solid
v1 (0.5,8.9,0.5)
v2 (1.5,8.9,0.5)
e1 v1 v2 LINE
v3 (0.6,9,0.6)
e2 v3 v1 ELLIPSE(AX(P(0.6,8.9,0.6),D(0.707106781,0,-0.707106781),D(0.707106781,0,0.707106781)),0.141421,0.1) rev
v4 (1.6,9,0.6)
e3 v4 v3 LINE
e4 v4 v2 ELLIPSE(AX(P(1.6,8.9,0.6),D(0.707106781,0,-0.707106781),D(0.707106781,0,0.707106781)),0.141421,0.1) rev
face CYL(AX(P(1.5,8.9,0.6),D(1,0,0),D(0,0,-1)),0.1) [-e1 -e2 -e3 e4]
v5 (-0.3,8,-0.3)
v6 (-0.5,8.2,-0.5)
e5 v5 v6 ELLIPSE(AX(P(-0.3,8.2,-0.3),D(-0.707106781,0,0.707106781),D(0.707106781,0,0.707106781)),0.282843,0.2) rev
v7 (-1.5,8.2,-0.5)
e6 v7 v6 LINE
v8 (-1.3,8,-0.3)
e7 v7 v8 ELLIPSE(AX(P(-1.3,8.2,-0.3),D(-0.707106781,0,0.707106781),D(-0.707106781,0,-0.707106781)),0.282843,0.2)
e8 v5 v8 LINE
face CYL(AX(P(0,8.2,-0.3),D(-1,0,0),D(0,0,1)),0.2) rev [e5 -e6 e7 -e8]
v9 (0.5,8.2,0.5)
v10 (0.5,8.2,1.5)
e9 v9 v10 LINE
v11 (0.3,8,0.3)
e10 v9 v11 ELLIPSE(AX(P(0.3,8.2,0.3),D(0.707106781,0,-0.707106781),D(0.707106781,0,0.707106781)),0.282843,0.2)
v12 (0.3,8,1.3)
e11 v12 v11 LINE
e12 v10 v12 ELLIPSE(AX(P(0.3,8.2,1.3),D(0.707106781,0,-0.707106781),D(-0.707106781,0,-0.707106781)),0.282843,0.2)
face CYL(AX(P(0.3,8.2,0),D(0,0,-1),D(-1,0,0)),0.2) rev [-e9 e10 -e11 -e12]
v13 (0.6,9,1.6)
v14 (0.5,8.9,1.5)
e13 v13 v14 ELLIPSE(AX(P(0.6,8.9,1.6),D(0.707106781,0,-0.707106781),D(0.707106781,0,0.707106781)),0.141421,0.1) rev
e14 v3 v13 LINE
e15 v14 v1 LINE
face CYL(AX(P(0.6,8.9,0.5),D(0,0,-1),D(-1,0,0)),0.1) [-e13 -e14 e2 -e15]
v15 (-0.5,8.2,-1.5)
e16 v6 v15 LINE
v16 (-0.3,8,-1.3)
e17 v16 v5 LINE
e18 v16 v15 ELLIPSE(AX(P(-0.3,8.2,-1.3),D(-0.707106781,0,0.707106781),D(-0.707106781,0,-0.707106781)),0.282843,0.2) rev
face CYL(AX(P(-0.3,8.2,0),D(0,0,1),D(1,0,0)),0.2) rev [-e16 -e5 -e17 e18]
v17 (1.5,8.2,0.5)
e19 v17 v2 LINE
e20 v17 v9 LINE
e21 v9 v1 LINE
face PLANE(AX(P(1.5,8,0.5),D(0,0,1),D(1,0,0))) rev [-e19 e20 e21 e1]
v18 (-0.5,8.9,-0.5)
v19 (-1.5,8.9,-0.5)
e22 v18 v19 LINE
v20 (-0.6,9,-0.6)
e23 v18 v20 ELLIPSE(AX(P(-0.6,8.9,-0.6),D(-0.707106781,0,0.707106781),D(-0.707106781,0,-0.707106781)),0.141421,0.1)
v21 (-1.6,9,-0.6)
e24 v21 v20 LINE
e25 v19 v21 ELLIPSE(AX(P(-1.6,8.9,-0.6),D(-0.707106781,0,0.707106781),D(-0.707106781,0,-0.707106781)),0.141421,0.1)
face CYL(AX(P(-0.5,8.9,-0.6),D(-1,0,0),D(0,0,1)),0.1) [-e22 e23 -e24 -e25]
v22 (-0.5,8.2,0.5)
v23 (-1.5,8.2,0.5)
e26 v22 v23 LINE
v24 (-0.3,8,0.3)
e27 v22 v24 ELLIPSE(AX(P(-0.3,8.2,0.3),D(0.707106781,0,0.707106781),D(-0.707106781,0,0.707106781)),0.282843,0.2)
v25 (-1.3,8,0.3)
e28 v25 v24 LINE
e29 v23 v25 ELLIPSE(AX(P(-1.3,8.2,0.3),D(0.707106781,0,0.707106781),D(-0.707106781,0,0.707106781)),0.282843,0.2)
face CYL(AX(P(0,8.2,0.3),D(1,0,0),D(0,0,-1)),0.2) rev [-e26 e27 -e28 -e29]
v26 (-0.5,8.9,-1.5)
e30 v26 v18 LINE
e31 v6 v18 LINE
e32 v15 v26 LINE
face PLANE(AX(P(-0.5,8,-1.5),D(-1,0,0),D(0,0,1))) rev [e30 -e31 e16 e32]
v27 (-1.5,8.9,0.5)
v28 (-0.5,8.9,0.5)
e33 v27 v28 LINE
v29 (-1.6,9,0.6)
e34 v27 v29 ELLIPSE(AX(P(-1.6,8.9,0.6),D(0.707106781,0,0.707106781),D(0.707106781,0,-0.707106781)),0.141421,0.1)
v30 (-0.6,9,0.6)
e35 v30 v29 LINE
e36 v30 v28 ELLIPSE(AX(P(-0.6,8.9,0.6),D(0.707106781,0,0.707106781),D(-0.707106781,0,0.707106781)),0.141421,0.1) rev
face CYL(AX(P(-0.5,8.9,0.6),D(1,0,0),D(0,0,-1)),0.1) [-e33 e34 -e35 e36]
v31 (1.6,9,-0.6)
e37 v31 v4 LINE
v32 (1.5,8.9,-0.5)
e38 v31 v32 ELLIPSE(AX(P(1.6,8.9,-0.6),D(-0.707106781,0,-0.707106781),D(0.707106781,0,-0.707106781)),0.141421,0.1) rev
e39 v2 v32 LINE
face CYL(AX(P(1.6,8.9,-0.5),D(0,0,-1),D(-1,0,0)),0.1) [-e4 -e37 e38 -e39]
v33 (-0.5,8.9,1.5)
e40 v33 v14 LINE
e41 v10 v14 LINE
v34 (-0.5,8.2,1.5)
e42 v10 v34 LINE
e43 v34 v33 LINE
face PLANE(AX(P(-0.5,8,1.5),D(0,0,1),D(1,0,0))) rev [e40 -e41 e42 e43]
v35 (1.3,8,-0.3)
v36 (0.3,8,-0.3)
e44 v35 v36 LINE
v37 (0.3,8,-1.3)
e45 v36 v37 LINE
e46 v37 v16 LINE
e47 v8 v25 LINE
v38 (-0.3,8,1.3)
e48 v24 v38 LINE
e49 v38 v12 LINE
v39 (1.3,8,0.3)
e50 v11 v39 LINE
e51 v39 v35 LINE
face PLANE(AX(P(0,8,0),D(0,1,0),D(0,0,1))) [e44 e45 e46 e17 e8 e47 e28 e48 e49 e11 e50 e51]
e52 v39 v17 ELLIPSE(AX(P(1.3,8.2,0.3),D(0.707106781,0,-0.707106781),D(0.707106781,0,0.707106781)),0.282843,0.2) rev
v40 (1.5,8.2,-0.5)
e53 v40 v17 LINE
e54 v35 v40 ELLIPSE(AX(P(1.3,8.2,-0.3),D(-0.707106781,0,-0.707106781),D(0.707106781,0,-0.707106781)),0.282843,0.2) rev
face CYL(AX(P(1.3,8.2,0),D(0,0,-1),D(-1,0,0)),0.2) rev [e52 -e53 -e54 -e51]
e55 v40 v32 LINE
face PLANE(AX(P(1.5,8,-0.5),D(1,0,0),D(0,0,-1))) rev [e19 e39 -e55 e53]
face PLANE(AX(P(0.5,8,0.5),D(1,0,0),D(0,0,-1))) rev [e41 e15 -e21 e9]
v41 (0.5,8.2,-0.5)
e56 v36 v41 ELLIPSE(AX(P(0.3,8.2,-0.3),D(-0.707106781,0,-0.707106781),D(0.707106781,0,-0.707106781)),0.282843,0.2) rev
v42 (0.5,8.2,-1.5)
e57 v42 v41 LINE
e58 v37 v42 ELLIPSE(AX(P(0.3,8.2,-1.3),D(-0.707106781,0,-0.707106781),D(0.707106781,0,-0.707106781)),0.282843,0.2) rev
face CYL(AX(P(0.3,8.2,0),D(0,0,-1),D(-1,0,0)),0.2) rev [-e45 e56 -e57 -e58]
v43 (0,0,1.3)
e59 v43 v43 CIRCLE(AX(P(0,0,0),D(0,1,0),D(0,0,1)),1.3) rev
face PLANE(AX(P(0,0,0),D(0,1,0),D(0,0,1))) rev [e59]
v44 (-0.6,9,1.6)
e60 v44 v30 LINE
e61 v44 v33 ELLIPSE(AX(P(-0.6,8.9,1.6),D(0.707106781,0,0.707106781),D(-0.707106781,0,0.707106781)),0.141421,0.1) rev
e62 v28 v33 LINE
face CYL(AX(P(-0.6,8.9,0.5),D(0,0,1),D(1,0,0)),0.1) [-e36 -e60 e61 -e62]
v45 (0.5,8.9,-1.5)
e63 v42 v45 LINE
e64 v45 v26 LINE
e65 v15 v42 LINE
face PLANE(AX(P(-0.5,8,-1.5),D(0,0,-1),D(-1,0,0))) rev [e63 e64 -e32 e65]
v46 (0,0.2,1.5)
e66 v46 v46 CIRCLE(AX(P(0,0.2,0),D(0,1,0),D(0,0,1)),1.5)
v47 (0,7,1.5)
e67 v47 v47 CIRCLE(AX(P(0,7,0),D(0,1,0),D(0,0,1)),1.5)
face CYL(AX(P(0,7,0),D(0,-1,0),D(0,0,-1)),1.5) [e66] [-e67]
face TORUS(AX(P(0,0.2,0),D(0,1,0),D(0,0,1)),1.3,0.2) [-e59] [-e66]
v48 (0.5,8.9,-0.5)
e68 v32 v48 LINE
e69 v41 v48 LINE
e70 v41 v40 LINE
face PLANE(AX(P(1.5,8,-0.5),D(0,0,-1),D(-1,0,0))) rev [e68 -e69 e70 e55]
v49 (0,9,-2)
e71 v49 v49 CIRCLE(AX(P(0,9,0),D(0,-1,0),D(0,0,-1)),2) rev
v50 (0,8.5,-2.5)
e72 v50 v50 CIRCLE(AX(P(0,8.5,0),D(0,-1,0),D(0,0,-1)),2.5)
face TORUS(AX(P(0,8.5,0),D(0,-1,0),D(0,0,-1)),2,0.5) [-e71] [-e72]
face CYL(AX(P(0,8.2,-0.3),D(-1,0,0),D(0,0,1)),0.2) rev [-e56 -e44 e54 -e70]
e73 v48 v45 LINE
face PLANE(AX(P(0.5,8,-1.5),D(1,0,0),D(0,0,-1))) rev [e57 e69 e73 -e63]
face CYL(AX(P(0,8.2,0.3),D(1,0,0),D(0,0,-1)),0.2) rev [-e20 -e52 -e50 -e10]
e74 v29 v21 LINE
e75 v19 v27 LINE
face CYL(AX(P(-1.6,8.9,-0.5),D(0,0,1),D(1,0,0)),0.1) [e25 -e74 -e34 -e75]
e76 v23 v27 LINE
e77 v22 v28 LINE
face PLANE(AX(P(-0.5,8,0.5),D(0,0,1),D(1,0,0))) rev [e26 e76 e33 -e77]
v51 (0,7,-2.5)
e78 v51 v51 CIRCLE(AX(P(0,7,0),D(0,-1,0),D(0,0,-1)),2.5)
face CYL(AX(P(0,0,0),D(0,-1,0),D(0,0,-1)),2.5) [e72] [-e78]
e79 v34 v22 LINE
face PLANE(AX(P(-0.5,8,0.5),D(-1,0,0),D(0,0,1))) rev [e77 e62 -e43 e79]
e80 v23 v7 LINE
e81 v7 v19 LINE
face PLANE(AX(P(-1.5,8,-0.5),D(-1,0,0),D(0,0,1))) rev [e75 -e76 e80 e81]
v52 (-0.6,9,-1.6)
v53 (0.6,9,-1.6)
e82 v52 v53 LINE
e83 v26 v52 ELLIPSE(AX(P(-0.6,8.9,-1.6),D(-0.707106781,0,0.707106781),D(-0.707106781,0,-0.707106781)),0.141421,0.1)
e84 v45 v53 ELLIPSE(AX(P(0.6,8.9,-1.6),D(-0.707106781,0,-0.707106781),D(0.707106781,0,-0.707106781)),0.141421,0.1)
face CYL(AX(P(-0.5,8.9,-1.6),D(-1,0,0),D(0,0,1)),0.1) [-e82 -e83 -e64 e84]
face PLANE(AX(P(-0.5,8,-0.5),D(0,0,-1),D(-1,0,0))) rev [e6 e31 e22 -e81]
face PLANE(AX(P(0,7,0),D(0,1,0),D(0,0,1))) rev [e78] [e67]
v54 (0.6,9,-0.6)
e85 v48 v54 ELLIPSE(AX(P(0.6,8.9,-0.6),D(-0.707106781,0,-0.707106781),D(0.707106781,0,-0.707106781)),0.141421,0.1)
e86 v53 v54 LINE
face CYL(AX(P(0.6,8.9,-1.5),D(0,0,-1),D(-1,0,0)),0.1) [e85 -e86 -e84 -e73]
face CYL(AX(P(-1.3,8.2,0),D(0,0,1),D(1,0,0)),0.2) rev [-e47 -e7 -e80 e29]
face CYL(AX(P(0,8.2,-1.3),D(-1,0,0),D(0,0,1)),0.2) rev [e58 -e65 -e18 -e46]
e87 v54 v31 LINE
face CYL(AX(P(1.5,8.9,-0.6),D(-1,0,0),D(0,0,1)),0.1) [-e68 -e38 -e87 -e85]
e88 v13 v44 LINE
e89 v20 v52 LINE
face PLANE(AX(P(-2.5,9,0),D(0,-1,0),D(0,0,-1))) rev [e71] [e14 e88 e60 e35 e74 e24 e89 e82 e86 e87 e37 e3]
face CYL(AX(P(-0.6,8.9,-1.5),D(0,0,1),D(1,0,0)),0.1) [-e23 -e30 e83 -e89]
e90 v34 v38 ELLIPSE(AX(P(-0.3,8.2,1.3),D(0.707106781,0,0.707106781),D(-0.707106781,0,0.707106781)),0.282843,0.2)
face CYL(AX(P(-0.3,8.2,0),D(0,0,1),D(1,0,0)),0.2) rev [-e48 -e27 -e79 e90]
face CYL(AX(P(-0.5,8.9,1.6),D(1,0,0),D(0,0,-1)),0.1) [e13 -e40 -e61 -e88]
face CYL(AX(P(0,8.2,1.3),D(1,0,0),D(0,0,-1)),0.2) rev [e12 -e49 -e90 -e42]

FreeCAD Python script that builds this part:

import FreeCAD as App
import Part
import Sketcher

V = App.Vector
Q = App.Units.Quantity


def edges_at(feature, points):
    """Names of the edges that pass closest to the given points."""
    edges = feature.Shape.Edges
    near = lambda p: min(range(len(edges)), key=lambda i: edges[i].distToShape(Part.Vertex(*p))[0])
    return sorted({f"Edge{near(p) + 1}" for p in points})

doc = App.newDocument("Part")
body = doc.addObject("PartDesign::Body", "Body")

# Sketch on XZ plane
sketch1 = doc.addObject("Sketcher::SketchObject", "Sketch")
body.addObject(sketch1)
sketch1.AttachmentSupport = (doc.XZ_Plane, [""])
sketch1.MapMode = "FlatFace"
sketch1.addGeometry(Part.Circle(V(0, 0, 0), V(0, 0, 1), 1.5), False)
sketch1.addConstraint([
    Sketcher.Constraint("Coincident", 0, 3, -1, 1),
    Sketcher.Constraint("Diameter", 0, Q("3 mm")),
])
pad1 = doc.addObject("PartDesign::Pad", "Pad")
body.addObject(pad1)
pad1.Profile = sketch1
pad1.Length = 7
pad1.Reversed = True
doc.recompute()

fillet = doc.addObject("PartDesign::Fillet", "Fillet")
body.addObject(fillet)
fillet.Base = (pad1, edges_at(pad1, [(0, 0, -1.5)]))
fillet.Radius = 0.2

# Sketch on XY plane
sketch2 = doc.addObject("Sketcher::SketchObject", "Sketch001")
body.addObject(sketch2)
sketch2.AttachmentSupport = (doc.XY_Plane, [""])
sketch2.MapMode = "FlatFace"
sketch2.addGeometry([
    Part.LineSegment(V(-2.5, 9, 0), V(-2.5, 7, 0)),
    Part.LineSegment(V(-2.5, 7, 0), V(0, 7, 0)),
    Part.LineSegment(V(0, 7, 0), V(0, 9, 0)),
    Part.LineSegment(V(0, 9, 0), V(-2.5, 9, 0)),
], False)
sketch2.addConstraint([
    Sketcher.Constraint("Coincident", 0, 2, 1, 1),
    Sketcher.Constraint("Coincident", 1, 2, 2, 1),
    Sketcher.Constraint("Coincident", 2, 2, 3, 1),
    Sketcher.Constraint("Coincident", 3, 2, 0, 1),
    Sketcher.Constraint("Vertical", 0),
    Sketcher.Constraint("Horizontal", 1),
    Sketcher.Constraint("Vertical", 2),
    Sketcher.Constraint("Horizontal", 3),
    Sketcher.Constraint("PointOnObject", 1, 2, -2),
    Sketcher.Constraint("DistanceY", 0, 2, 0, 1, Q("2 mm")),
    Sketcher.Constraint("DistanceX", 1, 1, 1, 2, Q("2.5 mm")),
    Sketcher.Constraint("DistanceY", -1, 1, 0, 2, Q("7 mm")),
])
revolution = doc.addObject("PartDesign::Revolution", "Revolution")
body.addObject(revolution)
revolution.Profile = sketch2
revolution.ReferenceAxis = (sketch2, ["V_Axis"])
revolution.Angle = 360

# Sketch on XZ plane
sketch3 = doc.addObject("Sketcher::SketchObject", "Sketch002")
body.addObject(sketch3)
sketch3.AttachmentSupport = (doc.XZ_Plane, [""])
sketch3.MapMode = "FlatFace"
sketch3.AttachmentOffset = App.Placement(V(0, 0, -9), App.Rotation())
sketch3.addGeometry([
    Part.LineSegment(V(-0.5, -0.5, 0), V(-1.5, -0.5, 0)),  # 0
    Part.LineSegment(V(-1.5, -0.5, 0), V(-1.5, 0.5, 0)),  # 1
    Part.LineSegment(V(-1.5, 0.5, 0), V(-0.5, 0.5, 0)),  # 2
    Part.LineSegment(V(-0.5, 0.5, 0), V(-0.5, 1.5, 0)),  # 3
    Part.LineSegment(V(-0.5, 1.5, 0), V(0.5, 1.5, 0)),  # 4
    Part.LineSegment(V(0.5, 1.5, 0), V(0.5, 0.5, 0)),  # 5
    Part.LineSegment(V(0.5, 0.5, 0), V(1.5, 0.5, 0)),  # 6
    Part.LineSegment(V(1.5, 0.5, 0), V(1.5, -0.5, 0)),  # 7
    Part.LineSegment(V(1.5, -0.5, 0), V(0.5, -0.5, 0)),  # 8
    Part.LineSegment(V(0.5, -0.5, 0), V(0.5, -1.5, 0)),  # 9
    Part.LineSegment(V(0.5, -1.5, 0), V(-0.5, -1.5, 0)),  # 10
    Part.LineSegment(V(-0.5, -1.5, 0), V(-0.5, -0.5, 0)),  # 11
], False)
sketch3.addConstraint([
    Sketcher.Constraint("Coincident", 0, 2, 1, 1),
    Sketcher.Constraint("Coincident", 1, 2, 2, 1),
    Sketcher.Constraint("Coincident", 2, 2, 3, 1),
    Sketcher.Constraint("Coincident", 3, 2, 4, 1),
    Sketcher.Constraint("Coincident", 4, 2, 5, 1),
    Sketcher.Constraint("Coincident", 5, 2, 6, 1),
    Sketcher.Constraint("Coincident", 6, 2, 7, 1),
    Sketcher.Constraint("Coincident", 7, 2, 8, 1),
    Sketcher.Constraint("Coincident", 8, 2, 9, 1),
    Sketcher.Constraint("Coincident", 9, 2, 10, 1),
    Sketcher.Constraint("Coincident", 10, 2, 11, 1),
    Sketcher.Constraint("Coincident", 11, 2, 0, 1),
    Sketcher.Constraint("Horizontal", 0),
    Sketcher.Constraint("Vertical", 1),
    Sketcher.Constraint("Horizontal", 2),
    Sketcher.Constraint("Vertical", 3),
    Sketcher.Constraint("Horizontal", 4),
    Sketcher.Constraint("Vertical", 5),
    Sketcher.Constraint("Horizontal", 6),
    Sketcher.Constraint("Vertical", 7),
    Sketcher.Constraint("Horizontal", 8),
    Sketcher.Constraint("Vertical", 9),
    Sketcher.Constraint("Horizontal", 10),
    Sketcher.Constraint("Vertical", 11),
    Sketcher.Constraint("Symmetric", 0, 2, 6, 2, -1, 1),
    Sketcher.Constraint("Symmetric", 2, 2, 8, 2, -1, 1),
    Sketcher.Constraint("Symmetric", 4, 2, 10, 2, -1, 1),
    Sketcher.Constraint("Symmetric", 2, 2, 5, 2, -2),
    Sketcher.Constraint("Equal", 2, 4),
    Sketcher.Constraint("Equal", 10, 1),
    Sketcher.Constraint("Equal", 1, 3),
    Sketcher.Constraint("DistanceX", 0, 2, 0, 1, Q("1 mm")),
])
pocket1 = doc.addObject("PartDesign::Pocket", "Pocket")
body.addObject(pocket1)
pocket1.Profile = sketch3
pocket1.Length = 1
pocket1.Reversed = True
doc.recompute()

fillet2 = doc.addObject("PartDesign::Fillet", "Fillet001")
body.addObject(fillet2)
fillet2.Base = (pocket1, edges_at(pocket1, [
    (0.5, 9, 1),
    (1, 9, 0.5),
    (1.5, 9, 0),
    (1, 9, -0.5),
    (0.5, 9, -1),
    (0, 9, -1.5),
    (-0.5, 9, -1),
    (-1, 9, -0.5),
    (-1.5, 9, 0),
    (-1, 9, 0.5),
    (-0.5, 9, 1),
    (0, 9, 1.5),
]))
fillet2.Radius = 0.1
doc.recompute()

fillet3 = doc.addObject("PartDesign::Fillet", "Fillet002")
body.addObject(fillet3)
fillet3.Base = (fillet2, edges_at(fillet2, [
    (0.5, 8, 1),
    (0, 8, 1.5),
    (-0.5, 8, 1),
    (-1, 8, 0.5),
    (-1.5, 8, 0),
    (-1, 8, -0.5),
    (-0.5, 8, -1),
    (0, 8, -1.5),
    (0.5, 8, -1),
    (1, 8, -0.5),
    (1.5, 8, 0),
    (1, 8, 0.5),
]))
fillet3.Radius = 0.2
doc.recompute()

fillet4 = doc.addObject("PartDesign::Fillet", "Fillet003")
body.addObject(fillet4)
fillet4.Base = (fillet3, edges_at(fillet3, [(0, 9, 2.5)]))
fillet4.Radius = 0.5

doc.recompute()
